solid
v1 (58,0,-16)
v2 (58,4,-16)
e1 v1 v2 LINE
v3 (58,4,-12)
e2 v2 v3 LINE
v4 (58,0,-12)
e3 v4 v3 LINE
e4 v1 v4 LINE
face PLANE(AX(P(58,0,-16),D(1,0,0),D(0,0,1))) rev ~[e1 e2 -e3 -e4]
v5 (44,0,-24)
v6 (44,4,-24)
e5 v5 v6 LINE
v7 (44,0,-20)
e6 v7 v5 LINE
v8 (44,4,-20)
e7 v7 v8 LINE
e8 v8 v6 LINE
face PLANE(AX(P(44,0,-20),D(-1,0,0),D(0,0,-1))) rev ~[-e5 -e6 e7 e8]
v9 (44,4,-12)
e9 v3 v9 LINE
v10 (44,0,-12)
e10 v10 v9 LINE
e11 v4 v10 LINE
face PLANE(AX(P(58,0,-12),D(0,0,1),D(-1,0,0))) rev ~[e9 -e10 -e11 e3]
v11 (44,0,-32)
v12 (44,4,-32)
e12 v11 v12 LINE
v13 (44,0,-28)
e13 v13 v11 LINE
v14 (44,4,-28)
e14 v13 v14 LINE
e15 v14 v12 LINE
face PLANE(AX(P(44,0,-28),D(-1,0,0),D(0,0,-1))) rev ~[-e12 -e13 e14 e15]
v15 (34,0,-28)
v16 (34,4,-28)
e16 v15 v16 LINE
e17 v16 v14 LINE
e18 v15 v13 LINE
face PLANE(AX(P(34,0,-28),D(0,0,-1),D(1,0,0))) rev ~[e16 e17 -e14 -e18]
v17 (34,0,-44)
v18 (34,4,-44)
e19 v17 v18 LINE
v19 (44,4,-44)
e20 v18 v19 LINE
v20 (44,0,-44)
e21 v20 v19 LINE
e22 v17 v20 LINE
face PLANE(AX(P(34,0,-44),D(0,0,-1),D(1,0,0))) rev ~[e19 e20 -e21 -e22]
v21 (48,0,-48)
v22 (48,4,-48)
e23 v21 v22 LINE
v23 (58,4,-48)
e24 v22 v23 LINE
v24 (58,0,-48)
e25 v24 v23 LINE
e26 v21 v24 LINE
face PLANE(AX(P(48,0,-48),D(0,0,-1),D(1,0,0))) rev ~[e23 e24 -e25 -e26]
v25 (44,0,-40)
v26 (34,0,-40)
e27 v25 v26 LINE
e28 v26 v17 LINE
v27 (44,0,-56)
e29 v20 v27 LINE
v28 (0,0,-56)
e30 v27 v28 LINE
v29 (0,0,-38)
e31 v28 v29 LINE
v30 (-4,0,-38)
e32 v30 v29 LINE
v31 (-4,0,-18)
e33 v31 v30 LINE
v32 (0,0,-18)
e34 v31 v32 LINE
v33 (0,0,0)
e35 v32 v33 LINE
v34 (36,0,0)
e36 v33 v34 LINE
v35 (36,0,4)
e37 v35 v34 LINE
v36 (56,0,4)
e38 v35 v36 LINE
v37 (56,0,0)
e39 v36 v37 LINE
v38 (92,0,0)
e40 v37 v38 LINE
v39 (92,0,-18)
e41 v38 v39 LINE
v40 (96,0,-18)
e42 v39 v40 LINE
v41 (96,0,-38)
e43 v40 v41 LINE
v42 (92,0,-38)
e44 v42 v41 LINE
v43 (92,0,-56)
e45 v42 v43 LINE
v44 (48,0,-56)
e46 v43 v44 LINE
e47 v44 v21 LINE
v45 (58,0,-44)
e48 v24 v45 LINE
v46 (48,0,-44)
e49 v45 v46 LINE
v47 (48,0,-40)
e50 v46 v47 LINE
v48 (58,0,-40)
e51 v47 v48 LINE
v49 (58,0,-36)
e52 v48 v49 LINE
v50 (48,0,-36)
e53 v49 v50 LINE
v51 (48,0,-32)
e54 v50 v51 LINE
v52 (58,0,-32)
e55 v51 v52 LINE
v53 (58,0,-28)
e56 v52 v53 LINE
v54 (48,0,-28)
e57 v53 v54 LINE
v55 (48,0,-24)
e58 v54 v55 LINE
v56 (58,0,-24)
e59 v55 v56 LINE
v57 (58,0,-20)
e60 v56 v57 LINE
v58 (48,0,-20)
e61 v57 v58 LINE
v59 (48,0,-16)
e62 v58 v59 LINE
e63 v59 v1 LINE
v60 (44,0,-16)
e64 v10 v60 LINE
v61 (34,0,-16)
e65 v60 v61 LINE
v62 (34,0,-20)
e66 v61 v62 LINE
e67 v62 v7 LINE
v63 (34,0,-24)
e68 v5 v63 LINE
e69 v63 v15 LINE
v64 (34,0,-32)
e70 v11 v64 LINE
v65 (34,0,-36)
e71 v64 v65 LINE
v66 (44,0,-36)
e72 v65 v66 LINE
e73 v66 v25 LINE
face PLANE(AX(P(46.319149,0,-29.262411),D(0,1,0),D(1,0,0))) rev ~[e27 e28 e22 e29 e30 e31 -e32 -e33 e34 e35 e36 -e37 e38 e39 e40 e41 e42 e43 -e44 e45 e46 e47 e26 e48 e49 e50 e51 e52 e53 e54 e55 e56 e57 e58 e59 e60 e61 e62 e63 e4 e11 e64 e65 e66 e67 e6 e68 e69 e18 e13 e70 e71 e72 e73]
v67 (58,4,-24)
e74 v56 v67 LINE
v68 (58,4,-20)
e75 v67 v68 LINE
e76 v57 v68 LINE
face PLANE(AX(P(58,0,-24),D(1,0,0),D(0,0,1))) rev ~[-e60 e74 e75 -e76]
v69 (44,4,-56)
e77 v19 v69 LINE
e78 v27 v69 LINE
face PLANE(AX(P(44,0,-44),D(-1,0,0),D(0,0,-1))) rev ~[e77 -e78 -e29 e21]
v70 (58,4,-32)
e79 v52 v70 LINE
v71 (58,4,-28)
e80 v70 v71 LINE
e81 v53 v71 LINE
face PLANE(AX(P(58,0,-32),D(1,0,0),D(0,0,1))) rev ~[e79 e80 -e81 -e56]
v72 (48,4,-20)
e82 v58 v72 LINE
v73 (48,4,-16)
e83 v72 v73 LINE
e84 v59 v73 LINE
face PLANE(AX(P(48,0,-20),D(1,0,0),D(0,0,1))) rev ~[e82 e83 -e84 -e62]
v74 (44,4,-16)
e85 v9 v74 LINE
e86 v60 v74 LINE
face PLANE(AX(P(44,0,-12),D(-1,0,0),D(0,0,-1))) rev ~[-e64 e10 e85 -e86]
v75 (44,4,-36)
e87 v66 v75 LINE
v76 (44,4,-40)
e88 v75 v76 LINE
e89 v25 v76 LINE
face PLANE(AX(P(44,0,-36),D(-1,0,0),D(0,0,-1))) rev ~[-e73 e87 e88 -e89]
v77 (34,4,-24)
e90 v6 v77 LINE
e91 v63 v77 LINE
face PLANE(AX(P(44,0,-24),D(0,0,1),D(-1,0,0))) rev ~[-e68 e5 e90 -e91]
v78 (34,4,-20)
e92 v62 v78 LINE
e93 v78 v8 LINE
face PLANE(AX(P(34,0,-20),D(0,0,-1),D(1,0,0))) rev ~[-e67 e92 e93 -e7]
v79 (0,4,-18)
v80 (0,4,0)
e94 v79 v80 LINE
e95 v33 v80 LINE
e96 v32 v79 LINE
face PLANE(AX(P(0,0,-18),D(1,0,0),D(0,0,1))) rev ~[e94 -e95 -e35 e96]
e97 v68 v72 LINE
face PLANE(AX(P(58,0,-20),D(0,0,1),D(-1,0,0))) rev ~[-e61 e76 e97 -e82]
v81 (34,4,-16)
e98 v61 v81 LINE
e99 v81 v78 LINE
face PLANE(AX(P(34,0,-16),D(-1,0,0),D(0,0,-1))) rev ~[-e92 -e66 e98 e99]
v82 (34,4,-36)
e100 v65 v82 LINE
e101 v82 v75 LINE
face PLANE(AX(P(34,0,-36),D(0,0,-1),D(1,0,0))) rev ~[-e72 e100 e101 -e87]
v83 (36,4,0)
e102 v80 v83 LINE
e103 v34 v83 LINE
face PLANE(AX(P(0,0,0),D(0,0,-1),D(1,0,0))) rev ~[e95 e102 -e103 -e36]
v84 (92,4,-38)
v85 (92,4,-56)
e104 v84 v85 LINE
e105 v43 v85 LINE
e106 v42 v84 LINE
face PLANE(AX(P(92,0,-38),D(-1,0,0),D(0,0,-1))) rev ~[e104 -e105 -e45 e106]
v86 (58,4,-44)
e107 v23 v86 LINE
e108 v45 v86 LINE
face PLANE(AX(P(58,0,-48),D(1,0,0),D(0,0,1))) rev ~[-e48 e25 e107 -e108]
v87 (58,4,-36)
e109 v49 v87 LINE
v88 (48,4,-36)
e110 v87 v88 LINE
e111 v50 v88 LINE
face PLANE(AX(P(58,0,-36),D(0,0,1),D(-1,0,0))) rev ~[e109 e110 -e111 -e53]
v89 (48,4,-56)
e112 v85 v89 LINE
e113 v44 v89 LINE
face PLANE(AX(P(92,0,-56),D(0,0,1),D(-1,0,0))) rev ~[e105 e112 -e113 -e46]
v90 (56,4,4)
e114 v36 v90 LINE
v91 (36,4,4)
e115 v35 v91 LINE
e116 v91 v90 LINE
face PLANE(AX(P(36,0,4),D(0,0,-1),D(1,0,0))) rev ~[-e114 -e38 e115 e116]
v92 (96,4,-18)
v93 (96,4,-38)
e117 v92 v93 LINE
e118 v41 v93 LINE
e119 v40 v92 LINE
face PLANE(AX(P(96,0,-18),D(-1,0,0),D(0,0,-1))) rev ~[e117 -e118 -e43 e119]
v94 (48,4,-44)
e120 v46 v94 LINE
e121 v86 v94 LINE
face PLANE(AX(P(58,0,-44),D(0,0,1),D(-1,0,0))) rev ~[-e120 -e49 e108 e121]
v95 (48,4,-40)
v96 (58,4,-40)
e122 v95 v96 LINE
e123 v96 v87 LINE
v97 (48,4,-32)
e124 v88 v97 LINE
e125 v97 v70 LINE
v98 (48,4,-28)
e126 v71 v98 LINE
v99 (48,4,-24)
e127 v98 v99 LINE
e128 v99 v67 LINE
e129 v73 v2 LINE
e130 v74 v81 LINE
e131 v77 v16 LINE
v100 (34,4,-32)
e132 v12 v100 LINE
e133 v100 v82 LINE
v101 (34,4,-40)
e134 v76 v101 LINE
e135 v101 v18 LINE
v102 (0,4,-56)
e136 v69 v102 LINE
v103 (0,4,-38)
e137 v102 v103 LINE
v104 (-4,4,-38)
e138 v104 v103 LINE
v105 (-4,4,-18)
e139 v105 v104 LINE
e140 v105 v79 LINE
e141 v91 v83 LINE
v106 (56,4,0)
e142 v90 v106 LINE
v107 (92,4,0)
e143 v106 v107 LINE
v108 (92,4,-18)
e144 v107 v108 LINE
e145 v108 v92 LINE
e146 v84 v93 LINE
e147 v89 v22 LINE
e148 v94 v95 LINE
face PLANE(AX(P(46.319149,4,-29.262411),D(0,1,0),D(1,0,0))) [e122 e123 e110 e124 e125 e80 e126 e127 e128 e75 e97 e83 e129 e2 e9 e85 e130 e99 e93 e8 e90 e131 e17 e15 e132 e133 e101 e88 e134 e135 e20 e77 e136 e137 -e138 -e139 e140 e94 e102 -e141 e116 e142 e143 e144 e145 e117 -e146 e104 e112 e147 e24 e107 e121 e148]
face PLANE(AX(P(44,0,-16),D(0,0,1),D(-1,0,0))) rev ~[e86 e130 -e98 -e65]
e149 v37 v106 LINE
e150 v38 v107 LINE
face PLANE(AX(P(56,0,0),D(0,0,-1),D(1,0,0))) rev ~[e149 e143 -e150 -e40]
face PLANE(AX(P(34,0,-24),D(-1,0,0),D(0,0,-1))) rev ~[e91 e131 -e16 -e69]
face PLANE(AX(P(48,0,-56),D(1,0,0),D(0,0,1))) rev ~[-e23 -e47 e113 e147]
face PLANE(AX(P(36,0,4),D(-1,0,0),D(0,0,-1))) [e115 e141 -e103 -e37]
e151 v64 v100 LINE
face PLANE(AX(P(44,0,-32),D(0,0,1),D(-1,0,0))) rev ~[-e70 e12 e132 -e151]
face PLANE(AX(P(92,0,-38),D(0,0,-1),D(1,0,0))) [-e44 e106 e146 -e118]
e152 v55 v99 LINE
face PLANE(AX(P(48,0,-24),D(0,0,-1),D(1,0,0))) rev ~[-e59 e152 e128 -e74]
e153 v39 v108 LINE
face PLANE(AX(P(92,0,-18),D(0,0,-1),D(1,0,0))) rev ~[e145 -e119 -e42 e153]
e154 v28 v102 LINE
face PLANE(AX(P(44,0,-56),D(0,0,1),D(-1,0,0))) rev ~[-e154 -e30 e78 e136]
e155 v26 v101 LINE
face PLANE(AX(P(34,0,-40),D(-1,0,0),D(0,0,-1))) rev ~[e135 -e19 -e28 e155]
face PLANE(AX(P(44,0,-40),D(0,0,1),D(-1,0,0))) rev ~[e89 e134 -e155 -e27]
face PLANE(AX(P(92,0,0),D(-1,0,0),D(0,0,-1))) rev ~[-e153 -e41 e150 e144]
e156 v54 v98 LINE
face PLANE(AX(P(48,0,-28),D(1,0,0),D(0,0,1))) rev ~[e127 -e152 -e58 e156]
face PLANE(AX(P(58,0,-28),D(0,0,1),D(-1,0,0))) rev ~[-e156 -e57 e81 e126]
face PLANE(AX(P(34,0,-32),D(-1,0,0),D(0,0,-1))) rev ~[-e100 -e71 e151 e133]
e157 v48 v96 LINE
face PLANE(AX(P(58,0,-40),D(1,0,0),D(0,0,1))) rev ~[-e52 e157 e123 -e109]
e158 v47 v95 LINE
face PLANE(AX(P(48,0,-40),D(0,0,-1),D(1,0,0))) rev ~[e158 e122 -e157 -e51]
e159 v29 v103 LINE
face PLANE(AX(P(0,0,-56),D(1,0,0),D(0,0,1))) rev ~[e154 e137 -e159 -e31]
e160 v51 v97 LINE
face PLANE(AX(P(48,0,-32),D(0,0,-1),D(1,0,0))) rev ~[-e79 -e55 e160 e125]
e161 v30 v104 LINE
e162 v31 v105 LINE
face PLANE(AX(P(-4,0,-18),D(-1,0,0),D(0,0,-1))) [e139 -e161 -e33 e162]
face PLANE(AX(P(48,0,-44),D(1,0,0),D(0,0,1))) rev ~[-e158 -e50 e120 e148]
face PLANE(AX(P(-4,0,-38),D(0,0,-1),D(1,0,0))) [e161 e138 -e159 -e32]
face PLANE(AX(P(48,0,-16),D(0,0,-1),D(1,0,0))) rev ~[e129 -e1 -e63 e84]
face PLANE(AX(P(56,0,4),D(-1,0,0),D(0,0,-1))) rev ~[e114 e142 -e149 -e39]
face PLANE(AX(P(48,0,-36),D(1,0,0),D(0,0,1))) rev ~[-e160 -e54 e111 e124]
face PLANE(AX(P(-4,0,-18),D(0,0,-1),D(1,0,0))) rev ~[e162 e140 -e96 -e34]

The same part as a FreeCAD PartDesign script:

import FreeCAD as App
import Part
import Sketcher

V = App.Vector
Q = App.Units.Quantity

doc = App.newDocument("Part")
body = doc.addObject("PartDesign::Body", "Body")

sketch1 = body.newObject("Sketcher::SketchObject", "Sketch")
sketch1.AttachmentSupport = (doc.getObject("XZ_Plane"), [""])
sketch1.MapMode = "FlatFace"
sketch1.addGeometry([
    Part.LineSegment(V(0, 0, 0), V(36, 0, 0)),
    Part.LineSegment(V(36, 0, 0), V(36, 4, 0)),
    Part.LineSegment(V(36, 4, 0), V(56, 4, 0)),
    Part.LineSegment(V(56, 4, 0), V(56, 0, 0)),
    Part.LineSegment(V(56, 0, 0), V(92, 0, 0)),
    Part.LineSegment(V(92, 0, 0), V(92, -18, 0)),
    Part.LineSegment(V(92, -18, 0), V(96, -18, 0)),
    Part.LineSegment(V(96, -18, 0), V(96, -38, 0)),
    Part.LineSegment(V(96, -38, 0), V(92, -38, 0)),
    Part.LineSegment(V(92, -38, 0), V(92, -56, 0)),
    Part.LineSegment(V(92, -56, 0), V(48, -56, 0)),
    Part.LineSegment(V(48, -56, 0), V(48, -48, 0)),
    Part.LineSegment(V(48, -48, 0), V(58, -48, 0)),
    Part.LineSegment(V(58, -48, 0), V(58, -44, 0)),
    Part.LineSegment(V(58, -44, 0), V(48, -44, 0)),
    Part.LineSegment(V(48, -44, 0), V(48, -40, 0)),
    Part.LineSegment(V(48, -40, 0), V(58, -40, 0)),
    Part.LineSegment(V(58, -40, 0), V(58, -36, 0)),
    Part.LineSegment(V(58, -36, 0), V(48, -36, 0)),
    Part.LineSegment(V(48, -36, 0), V(48, -32, 0)),
    Part.LineSegment(V(48, -32, 0), V(58, -32, 0)),
    Part.LineSegment(V(58, -32, 0), V(58, -28, 0)),
    Part.LineSegment(V(58, -28, 0), V(48, -28, 0)),
    Part.LineSegment(V(48, -28, 0), V(48, -24, 0)),
    Part.LineSegment(V(48, -24, 0), V(58, -24, 0)),
    Part.LineSegment(V(58, -24, 0), V(58, -20, 0)),
    Part.LineSegment(V(58, -20, 0), V(48, -20, 0)),
    Part.LineSegment(V(48, -20, 0), V(48, -16, 0)),
    Part.LineSegment(V(48, -16, 0), V(58, -16, 0)),
    Part.LineSegment(V(58, -16, 0), V(58, -12, 0)),
    Part.LineSegment(V(58, -12, 0), V(44, -12, 0)),
    Part.LineSegment(V(44, -12, 0), V(44, -16, 0)),
    Part.LineSegment(V(44, -16, 0), V(34, -16, 0)),
    Part.LineSegment(V(34, -16, 0), V(34, -20, 0)),
    Part.LineSegment(V(34, -20, 0), V(44, -20, 0)),
    Part.LineSegment(V(44, -20, 0), V(44, -24, 0)),
    Part.LineSegment(V(44, -24, 0), V(34, -24, 0)),
    Part.LineSegment(V(34, -24, 0), V(34, -28, 0)),
    Part.LineSegment(V(34, -28, 0), V(44, -28, 0)),
    Part.LineSegment(V(44, -28, 0), V(44, -32, 0)),
    Part.LineSegment(V(44, -32, 0), V(34, -32, 0)),
    Part.LineSegment(V(34, -32, 0), V(34, -36, 0)),
    Part.LineSegment(V(34, -36, 0), V(44, -36, 0)),
    Part.LineSegment(V(44, -36, 0), V(44, -40, 0)),
    Part.LineSegment(V(44, -40, 0), V(34, -40, 0)),
    Part.LineSegment(V(34, -40, 0), V(34, -44, 0)),
    Part.LineSegment(V(34, -44, 0), V(44, -44, 0)),
    Part.LineSegment(V(44, -44, 0), V(44, -56, 0)),
    Part.LineSegment(V(44, -56, 0), V(0, -56, 0)),
    Part.LineSegment(V(0, -56, 0), V(0, -38, 0)),
    Part.LineSegment(V(0, -38, 0), V(-4, -38, 0)),
    Part.LineSegment(V(-4, -38, 0), V(-4, -18, 0)),
    Part.LineSegment(V(-4, -18, 0), V(0, -18, 0)),
    Part.LineSegment(V(0, -18, 0), V(0, 0, 0)),
], False)
sketch1.addConstraint([
    Sketcher.Constraint("Coincident", 0, 2, 1, 1),
    Sketcher.Constraint("Coincident", 1, 2, 2, 1),
    Sketcher.Constraint("Coincident", 2, 2, 3, 1),
    Sketcher.Constraint("Coincident", 3, 2, 4, 1),
    Sketcher.Constraint("Coincident", 4, 2, 5, 1),
    Sketcher.Constraint("Coincident", 5, 2, 6, 1),
    Sketcher.Constraint("Coincident", 6, 2, 7, 1),
    Sketcher.Constraint("Coincident", 7, 2, 8, 1),
    Sketcher.Constraint("Coincident", 8, 2, 9, 1),
    Sketcher.Constraint("Coincident", 9, 2, 10, 1),
    Sketcher.Constraint("Coincident", 10, 2, 11, 1),
    Sketcher.Constraint("Coincident", 11, 2, 12, 1),
    Sketcher.Constraint("Coincident", 12, 2, 13, 1),
    Sketcher.Constraint("Coincident", 13, 2, 14, 1),
    Sketcher.Constraint("Coincident", 14, 2, 15, 1),
    Sketcher.Constraint("Coincident", 15, 2, 16, 1),
    Sketcher.Constraint("Coincident", 16, 2, 17, 1),
    Sketcher.Constraint("Coincident", 17, 2, 18, 1),
    Sketcher.Constraint("Coincident", 18, 2, 19, 1),
    Sketcher.Constraint("Coincident", 19, 2, 20, 1),
    Sketcher.Constraint("Coincident", 20, 2, 21, 1),
    Sketcher.Constraint("Coincident", 21, 2, 22, 1),
    Sketcher.Constraint("Coincident", 22, 2, 23, 1),
    Sketcher.Constraint("Coincident", 23, 2, 24, 1),
    Sketcher.Constraint("Coincident", 24, 2, 25, 1),
    Sketcher.Constraint("Coincident", 25, 2, 26, 1),
    Sketcher.Constraint("Coincident", 26, 2, 27, 1),
    Sketcher.Constraint("Coincident", 27, 2, 28, 1),
    Sketcher.Constraint("Coincident", 28, 2, 29, 1),
    Sketcher.Constraint("Coincident", 29, 2, 30, 1),
    Sketcher.Constraint("Coincident", 30, 2, 31, 1),
    Sketcher.Constraint("Coincident", 31, 2, 32, 1),
    Sketcher.Constraint("Coincident", 32, 2, 33, 1),
    Sketcher.Constraint("Coincident", 33, 2, 34, 1),
    Sketcher.Constraint("Coincident", 34, 2, 35, 1),
    Sketcher.Constraint("Coincident", 35, 2, 36, 1),
    Sketcher.Constraint("Coincident", 36, 2, 37, 1),
    Sketcher.Constraint("Coincident", 37, 2, 38, 1),
    Sketcher.Constraint("Coincident", 38, 2, 39, 1),
    Sketcher.Constraint("Coincident", 39, 2, 40, 1),
    Sketcher.Constraint("Coincident", 40, 2, 41, 1),
    Sketcher.Constraint("Coincident", 41, 2, 42, 1),
    Sketcher.Constraint("Coincident", 42, 2, 43, 1),
    Sketcher.Constraint("Coincident", 43, 2, 44, 1),
    Sketcher.Constraint("Coincident", 44, 2, 45, 1),
    Sketcher.Constraint("Coincident", 45, 2, 46, 1),
    Sketcher.Constraint("Coincident", 46, 2, 47, 1),
    Sketcher.Constraint("Coincident", 47, 2, 48, 1),
    Sketcher.Constraint("Coincident", 48, 2, 49, 1),
    Sketcher.Constraint("Coincident", 49, 2, 50, 1),
    Sketcher.Constraint("Coincident", 50, 2, 51, 1),
    Sketcher.Constraint("Coincident", 51, 2, 52, 1),
    Sketcher.Constraint("Coincident", 52, 2, 53, 1),
    Sketcher.Constraint("Coincident", 53, 2, 0, 1),
    Sketcher.Constraint("Horizontal", 0),
    Sketcher.Constraint("Vertical", 1),
    Sketcher.Constraint("Horizontal", 2),
    Sketcher.Constraint("Vertical", 3),
    Sketcher.Constraint("Horizontal", 4),
    Sketcher.Constraint("Vertical", 5),
    Sketcher.Constraint("Horizontal", 6),
    Sketcher.Constraint("Vertical", 7),
    Sketcher.Constraint("Horizontal", 8),
    Sketcher.Constraint("Vertical", 9),
    Sketcher.Constraint("Horizontal", 10),
    Sketcher.Constraint("Vertical", 11),
    Sketcher.Constraint("Horizontal", 12),
    Sketcher.Constraint("Vertical", 13),
    Sketcher.Constraint("Horizontal", 14),
    Sketcher.Constraint("Vertical", 15),
    Sketcher.Constraint("Horizontal", 16),
    Sketcher.Constraint("Vertical", 17),
    Sketcher.Constraint("Horizontal", 18),
    Sketcher.Constraint("Vertical", 19),
    Sketcher.Constraint("Horizontal", 20),
    Sketcher.Constraint("Vertical", 21),
    Sketcher.Constraint("Horizontal", 22),
    Sketcher.Constraint("Vertical", 23),
    Sketcher.Constraint("Horizontal", 24),
    Sketcher.Constraint("Vertical", 25),
    Sketcher.Constraint("Horizontal", 26),
    Sketcher.Constraint("Vertical", 27),
    Sketcher.Constraint("Horizontal", 28),
    Sketcher.Constraint("Vertical", 29),
    Sketcher.Constraint("Horizontal", 30),
    Sketcher.Constraint("Vertical", 31),
    Sketcher.Constraint("Horizontal", 32),
    Sketcher.Constraint("Vertical", 33),
    Sketcher.Constraint("Horizontal", 34),
    Sketcher.Constraint("Vertical", 35),
    Sketcher.Constraint("Horizontal", 36),
    Sketcher.Constraint("Vertical", 37),
    Sketcher.Constraint("Horizontal", 38),
    Sketcher.Constraint("Vertical", 39),
    Sketcher.Constraint("Horizontal", 40),
    Sketcher.Constraint("Vertical", 41),
    Sketcher.Constraint("Horizontal", 42),
    Sketcher.Constraint("Vertical", 43),
    Sketcher.Constraint("Horizontal", 44),
    Sketcher.Constraint("Vertical", 45),
    Sketcher.Constraint("Horizontal", 46),
    Sketcher.Constraint("Vertical", 47),
    Sketcher.Constraint("Horizontal", 48),
    Sketcher.Constraint("Vertical", 49),
    Sketcher.Constraint("Horizontal", 50),
    Sketcher.Constraint("Vertical", 51),
    Sketcher.Constraint("Horizontal", 52),
    Sketcher.Constraint("Vertical", 53),
    Sketcher.Constraint("Coincident", 53, 2, -1, 1),
    Sketcher.Constraint("PointOnObject", 3, 2, -1),
    Sketcher.Constraint("PointOnObject", 48, 2, -2),
    Sketcher.Constraint("Horizontal", 28, 2, 31, 2),
    Sketcher.Constraint("Horizontal", 26, 2, 33, 2),
    Sketcher.Constraint("Horizontal", 24, 2, 35, 2),
    Sketcher.Constraint("Horizontal", 22, 2, 37, 2),
    Sketcher.Constraint("Horizontal", 20, 2, 39, 2),
    Sketcher.Constraint("Horizontal", 18, 2, 41, 2),
    Sketcher.Constraint("Horizontal", 16, 2, 43, 2),
    Sketcher.Constraint("Horizontal", 14, 2, 45, 2),
    Sketcher.Constraint("Horizontal", 10, 2, 47, 2),
    Sketcher.Constraint("Horizontal", 8, 2, 49, 2),
    Sketcher.Constraint("Horizontal", 6, 2, 51, 2),
    Sketcher.Constraint("Vertical", 5, 2, 8, 2),
    Sketcher.Constraint("Vertical", 11, 2, 14, 2),
    Sketcher.Constraint("Vertical", 13, 2, 16, 2),
    Sketcher.Constraint("Vertical", 15, 2, 18, 2),
    Sketcher.Constraint("Vertical", 17, 2, 20, 2),
    Sketcher.Constraint("Vertical", 19, 2, 22, 2),
    Sketcher.Constraint("Vertical", 21, 2, 24, 2),
    Sketcher.Constraint("Vertical", 23, 2, 26, 2),
    Sketcher.Constraint("Vertical", 25, 2, 28, 2),
    Sketcher.Constraint("Vertical", 31, 2, 34, 2),
    Sketcher.Constraint("Vertical", 33, 2, 36, 2),
    Sketcher.Constraint("Vertical", 35, 2, 38, 2),
    Sketcher.Constraint("Vertical", 37, 2, 40, 2),
    Sketcher.Constraint("Vertical", 39, 2, 42, 2),
    Sketcher.Constraint("Vertical", 41, 2, 44, 2),
    Sketcher.Constraint("Vertical", 43, 2, 46, 2),
    Sketcher.Constraint("Equal", 0, 4),
    Sketcher.Constraint("Equal", 28, 32),
    Sketcher.Constraint("Equal", 10, 48),
    Sketcher.Constraint("Equal", 8, 50),
    Sketcher.Constraint("Equal", 52, 1),
    Sketcher.Constraint("Equal", 2, 7),
    Sketcher.Constraint("Equal", 5, 9),
    Sketcher.Constraint("Equal", 3, 13),
    Sketcher.Constraint("Equal", 13, 15),
    Sketcher.Constraint("Equal", 15, 17),
    Sketcher.Constraint("Equal", 17, 19),
    Sketcher.Constraint("Equal", 19, 21),
    Sketcher.Constraint("Equal", 21, 23),
    Sketcher.Constraint("Equal", 23, 25),
    Sketcher.Constraint("Equal", 25, 27),
    Sketcher.Constraint("Equal", 27, 29),
    Sketcher.Constraint("DistanceX", 0, 1, 0, 2, Q("36 mm")),
    Sketcher.Constraint("DistanceX", 2, 1, 2, 2, Q("20 mm")),
    Sketcher.Constraint("DistanceX", 6, 1, 6, 2, Q("4 mm")),
    Sketcher.Constraint("DistanceX", 10, 2, 10, 1, Q("44 mm")),
    Sketcher.Constraint("DistanceX", 12, 1, 12, 2, Q("10 mm")),
    Sketcher.Constraint("DistanceY", 5, 2, 5, 1, Q("18 mm")),
    Sketcher.Constraint("DistanceY", 11, 1, 11, 2, Q("8 mm")),
])
pad1 = body.newObject("PartDesign::Pad", "Pad")
pad1.Profile = sketch1
pad1.Length = 4
pad1.Reversed = True

doc.recompute()
